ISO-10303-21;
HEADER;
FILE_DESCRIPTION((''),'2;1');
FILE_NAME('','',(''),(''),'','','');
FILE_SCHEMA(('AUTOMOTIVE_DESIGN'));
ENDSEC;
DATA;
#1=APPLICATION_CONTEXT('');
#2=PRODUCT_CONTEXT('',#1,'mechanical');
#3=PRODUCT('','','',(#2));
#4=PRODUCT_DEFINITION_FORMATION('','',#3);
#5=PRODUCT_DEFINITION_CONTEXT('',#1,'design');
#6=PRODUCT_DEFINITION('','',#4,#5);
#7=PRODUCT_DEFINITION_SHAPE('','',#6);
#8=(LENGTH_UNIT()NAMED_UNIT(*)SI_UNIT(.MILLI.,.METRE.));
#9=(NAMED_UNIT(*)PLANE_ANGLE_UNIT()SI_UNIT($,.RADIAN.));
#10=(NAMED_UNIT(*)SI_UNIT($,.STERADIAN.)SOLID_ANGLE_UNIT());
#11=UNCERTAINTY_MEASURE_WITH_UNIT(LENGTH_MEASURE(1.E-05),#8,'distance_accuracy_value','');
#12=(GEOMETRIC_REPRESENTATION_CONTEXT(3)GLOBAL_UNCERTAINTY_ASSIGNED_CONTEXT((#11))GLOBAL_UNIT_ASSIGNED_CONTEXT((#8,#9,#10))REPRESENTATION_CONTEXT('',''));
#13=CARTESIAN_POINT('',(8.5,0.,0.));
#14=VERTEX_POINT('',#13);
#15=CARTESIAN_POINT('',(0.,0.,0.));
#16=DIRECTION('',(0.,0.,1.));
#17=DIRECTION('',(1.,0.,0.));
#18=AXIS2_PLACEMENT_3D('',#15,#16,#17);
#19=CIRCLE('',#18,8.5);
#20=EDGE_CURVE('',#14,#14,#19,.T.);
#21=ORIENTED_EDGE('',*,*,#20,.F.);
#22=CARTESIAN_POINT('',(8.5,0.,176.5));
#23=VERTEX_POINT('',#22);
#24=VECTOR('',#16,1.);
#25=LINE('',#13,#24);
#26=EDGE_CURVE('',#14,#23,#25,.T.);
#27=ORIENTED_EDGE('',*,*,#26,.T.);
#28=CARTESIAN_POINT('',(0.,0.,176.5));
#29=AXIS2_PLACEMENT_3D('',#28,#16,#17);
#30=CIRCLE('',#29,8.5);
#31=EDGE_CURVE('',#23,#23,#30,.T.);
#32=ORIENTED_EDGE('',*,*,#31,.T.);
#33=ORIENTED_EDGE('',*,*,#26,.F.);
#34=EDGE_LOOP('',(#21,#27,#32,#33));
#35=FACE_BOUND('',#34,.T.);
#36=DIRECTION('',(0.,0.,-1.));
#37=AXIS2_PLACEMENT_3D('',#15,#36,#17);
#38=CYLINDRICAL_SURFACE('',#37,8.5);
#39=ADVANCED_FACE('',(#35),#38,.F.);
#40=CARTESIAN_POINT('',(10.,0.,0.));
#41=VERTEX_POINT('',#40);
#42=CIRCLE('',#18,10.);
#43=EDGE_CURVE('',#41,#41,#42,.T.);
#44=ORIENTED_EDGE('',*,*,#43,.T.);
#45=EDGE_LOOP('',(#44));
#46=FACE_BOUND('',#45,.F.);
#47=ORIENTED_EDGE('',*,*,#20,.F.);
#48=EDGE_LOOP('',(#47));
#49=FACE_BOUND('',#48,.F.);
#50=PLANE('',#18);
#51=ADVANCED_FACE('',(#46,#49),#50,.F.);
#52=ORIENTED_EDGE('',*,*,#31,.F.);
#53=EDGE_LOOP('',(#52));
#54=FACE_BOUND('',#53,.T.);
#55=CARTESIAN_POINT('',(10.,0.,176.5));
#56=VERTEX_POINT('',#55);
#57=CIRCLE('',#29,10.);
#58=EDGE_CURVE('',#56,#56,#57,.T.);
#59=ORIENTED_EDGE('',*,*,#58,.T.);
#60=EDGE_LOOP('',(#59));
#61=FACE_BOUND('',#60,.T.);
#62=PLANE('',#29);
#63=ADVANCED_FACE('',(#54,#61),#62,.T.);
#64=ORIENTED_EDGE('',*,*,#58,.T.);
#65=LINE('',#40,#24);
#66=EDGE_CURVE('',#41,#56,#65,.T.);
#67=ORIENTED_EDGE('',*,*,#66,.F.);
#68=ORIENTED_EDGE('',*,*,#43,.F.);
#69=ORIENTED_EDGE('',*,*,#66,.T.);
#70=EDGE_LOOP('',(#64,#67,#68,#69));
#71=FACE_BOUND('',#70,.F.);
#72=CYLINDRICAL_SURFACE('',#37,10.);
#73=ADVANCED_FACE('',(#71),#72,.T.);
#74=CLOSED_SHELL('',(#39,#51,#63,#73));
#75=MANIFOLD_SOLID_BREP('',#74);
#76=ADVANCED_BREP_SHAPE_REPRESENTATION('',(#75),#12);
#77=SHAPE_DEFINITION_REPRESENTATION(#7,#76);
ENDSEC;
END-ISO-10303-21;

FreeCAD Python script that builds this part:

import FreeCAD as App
import Part
import Sketcher
from FreeCAD import Vector
Q = App.Units.Quantity

doc = App.newDocument("Part")
params = doc.addObject("Spreadsheet::Sheet", "Params")
for row, (alias, value) in enumerate([
    ("sketch1_diameter", "20 mm"),
    ("sketch1_diameter2", "17 mm"),
    ("pad1_length", "176.5 mm"),
], start=1):
    params.set(f"A{row}", alias)
    params.set(f"B{row}", "=" + value)
    params.setAlias(f"B{row}", alias)

body = doc.addObject("PartDesign::Body", "Body")

# Sketch on XY plane
sketch1 = body.newObject("Sketcher::SketchObject", "Sketch")
sketch1.AttachmentSupport = (doc.getObject("XY_Plane"), [""])
sketch1.MapMode = "FlatFace"
sketch1.addGeometry([
    Part.Circle(Vector(0, 0, 0), Vector(0, 0, 1), 10),
    Part.Circle(Vector(0, 0, 0), Vector(0, 0, 1), 8),
], False)
sketch1.addConstraint([
    Sketcher.Constraint("Coincident", 0, 3, -1, 1),
    Sketcher.Constraint("Coincident", 1, 3, -1, 1),
    Sketcher.Constraint("Diameter", 0, Q("20 mm")),
    Sketcher.Constraint("Diameter", 1, Q("17 mm")),
])
sketch1.setExpression("Constraints[2]", "Params.sketch1_diameter")
sketch1.setExpression("Constraints[3]", "Params.sketch1_diameter2")
pad1 = body.newObject("PartDesign::Pad", "Pad")
pad1.Profile = sketch1
pad1.setExpression("Length", "Params.pad1_length")

doc.recompute()
